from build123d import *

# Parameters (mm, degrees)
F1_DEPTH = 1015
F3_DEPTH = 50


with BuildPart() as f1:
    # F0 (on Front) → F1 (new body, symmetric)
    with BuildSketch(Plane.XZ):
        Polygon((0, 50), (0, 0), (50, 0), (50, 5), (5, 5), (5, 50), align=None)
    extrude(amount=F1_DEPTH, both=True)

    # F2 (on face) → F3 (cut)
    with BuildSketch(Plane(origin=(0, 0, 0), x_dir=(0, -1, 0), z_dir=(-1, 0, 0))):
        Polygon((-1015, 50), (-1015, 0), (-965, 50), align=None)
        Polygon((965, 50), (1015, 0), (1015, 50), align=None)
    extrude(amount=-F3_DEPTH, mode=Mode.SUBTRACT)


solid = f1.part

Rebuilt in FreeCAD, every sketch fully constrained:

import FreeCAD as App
import Part
import Sketcher
from FreeCAD import Vector
Q = App.Units.Quantity

doc = App.newDocument("Part")
params = doc.addObject("Spreadsheet::Sheet", "Params")
for row, (alias, value) in enumerate([
    ("sketch1_width", "50 mm"),
    ("sketch1_width2", "45 mm"),
    ("pad1_length", "2030 mm"),
    ("sketch2_width", "50 mm"),
    ("pocket1_length", "50 mm"),
], start=1):
    params.set(f"A{row}", alias)
    params.set(f"B{row}", "=" + value)
    params.setAlias(f"B{row}", alias)

body = doc.addObject("PartDesign::Body", "Body")

# Sketch on XZ plane
sketch1 = body.newObject("Sketcher::SketchObject", "Sketch")
sketch1.AttachmentSupport = (doc.getObject("XZ_Plane"), [""])
sketch1.MapMode = "FlatFace"
sketch1.addGeometry([
    Part.LineSegment(Vector(0, 50, 0), Vector(0, 0, 0)),  # 0
    Part.LineSegment(Vector(0, 0, 0), Vector(50, 0, 0)),  # 1
    Part.LineSegment(Vector(50, 0, 0), Vector(50, 5, 0)),  # 2
    Part.LineSegment(Vector(50, 5, 0), Vector(5, 5, 0)),  # 3
    Part.LineSegment(Vector(5, 5, 0), Vector(5, 50, 0)),  # 4
    Part.LineSegment(Vector(5, 50, 0), Vector(0, 50, 0)),  # 5
], False)
sketch1.addConstraint([
    Sketcher.Constraint("Coincident", 0, 2, 1, 1),
    Sketcher.Constraint("Coincident", 1, 2, 2, 1),
    Sketcher.Constraint("Coincident", 2, 2, 3, 1),
    Sketcher.Constraint("Coincident", 3, 2, 4, 1),
    Sketcher.Constraint("Coincident", 4, 2, 5, 1),
    Sketcher.Constraint("Coincident", 5, 2, 0, 1),
    Sketcher.Constraint("Vertical", 0),
    Sketcher.Constraint("Horizontal", 1),
    Sketcher.Constraint("Vertical", 2),
    Sketcher.Constraint("Horizontal", 3),
    Sketcher.Constraint("Vertical", 4),
    Sketcher.Constraint("Horizontal", 5),
    Sketcher.Constraint("Coincident", 0, 2, -1, 1),
    Sketcher.Constraint("Equal", 1, 0),
    Sketcher.Constraint("Equal", 5, 2),
    Sketcher.Constraint("DistanceX", 1, 1, 1, 2, Q("50 mm")),
    Sketcher.Constraint("DistanceX", 3, 2, 3, 1, Q("45 mm")),
])
sketch1.setExpression("Constraints[15]", "Params.sketch1_width")
sketch1.setExpression("Constraints[16]", "Params.sketch1_width2")
pad1 = body.newObject("PartDesign::Pad", "Pad")
pad1.Profile = sketch1
pad1.setExpression("Length", "Params.pad1_length")
pad1.Midplane = True

# Sketch on YZ plane
sketch2 = body.newObject("Sketcher::SketchObject", "Sketch001")
sketch2.AttachmentSupport = (doc.getObject("YZ_Plane"), [""])
sketch2.MapMode = "FlatFace"
sketch2.addGeometry([
    Part.LineSegment(Vector(1015, 50, 0), Vector(1015, 0, 0)),  # 0
    Part.LineSegment(Vector(1015, 0, 0), Vector(965, 50, 0)),  # 1
    Part.LineSegment(Vector(965, 50, 0), Vector(1015, 50, 0)),  # 2
    Part.LineSegment(Vector(-965, 50, 0), Vector(-1015, 0, 0)),  # 3
    Part.LineSegment(Vector(-1015, 0, 0), Vector(-1015, 50, 0)),  # 4
    Part.LineSegment(Vector(-1015, 50, 0), Vector(-965, 50, 0)),  # 5
], False)
sketch2.addConstraint([
    Sketcher.Constraint("Coincident", 0, 2, 1, 1),
    Sketcher.Constraint("Coincident", 1, 2, 2, 1),
    Sketcher.Constraint("Coincident", 2, 2, 0, 1),
    Sketcher.Constraint("Coincident", 3, 2, 4, 1),
    Sketcher.Constraint("Coincident", 4, 2, 5, 1),
    Sketcher.Constraint("Coincident", 5, 2, 3, 1),
    Sketcher.Constraint("Vertical", 0),
    Sketcher.Constraint("Horizontal", 2),
    Sketcher.Constraint("Vertical", 4),
    Sketcher.Constraint("Horizontal", 5),
    Sketcher.Constraint("Symmetric", 0, 2, 3, 2, -1, 1),
    Sketcher.Constraint("Symmetric", 1, 2, 5, 2, -2),
    Sketcher.Constraint("PointOnObject", 0, 2, -1),
    Sketcher.Constraint("Perpendicular", 1, 3),
    Sketcher.Constraint("DistanceX", 2, 1, 2, 2, Q("50 mm")),
    Sketcher.Constraint("DistanceX", -1, 1, 0, 2, Q("1015 mm")),
])
sketch2.setExpression("Constraints[14]", "Params.sketch2_width")
pocket1 = body.newObject("PartDesign::Pocket", "Pocket")
pocket1.Profile = sketch2
pocket1.setExpression("Length", "Params.pocket1_length")
pocket1.Reversed = True

doc.recompute()
